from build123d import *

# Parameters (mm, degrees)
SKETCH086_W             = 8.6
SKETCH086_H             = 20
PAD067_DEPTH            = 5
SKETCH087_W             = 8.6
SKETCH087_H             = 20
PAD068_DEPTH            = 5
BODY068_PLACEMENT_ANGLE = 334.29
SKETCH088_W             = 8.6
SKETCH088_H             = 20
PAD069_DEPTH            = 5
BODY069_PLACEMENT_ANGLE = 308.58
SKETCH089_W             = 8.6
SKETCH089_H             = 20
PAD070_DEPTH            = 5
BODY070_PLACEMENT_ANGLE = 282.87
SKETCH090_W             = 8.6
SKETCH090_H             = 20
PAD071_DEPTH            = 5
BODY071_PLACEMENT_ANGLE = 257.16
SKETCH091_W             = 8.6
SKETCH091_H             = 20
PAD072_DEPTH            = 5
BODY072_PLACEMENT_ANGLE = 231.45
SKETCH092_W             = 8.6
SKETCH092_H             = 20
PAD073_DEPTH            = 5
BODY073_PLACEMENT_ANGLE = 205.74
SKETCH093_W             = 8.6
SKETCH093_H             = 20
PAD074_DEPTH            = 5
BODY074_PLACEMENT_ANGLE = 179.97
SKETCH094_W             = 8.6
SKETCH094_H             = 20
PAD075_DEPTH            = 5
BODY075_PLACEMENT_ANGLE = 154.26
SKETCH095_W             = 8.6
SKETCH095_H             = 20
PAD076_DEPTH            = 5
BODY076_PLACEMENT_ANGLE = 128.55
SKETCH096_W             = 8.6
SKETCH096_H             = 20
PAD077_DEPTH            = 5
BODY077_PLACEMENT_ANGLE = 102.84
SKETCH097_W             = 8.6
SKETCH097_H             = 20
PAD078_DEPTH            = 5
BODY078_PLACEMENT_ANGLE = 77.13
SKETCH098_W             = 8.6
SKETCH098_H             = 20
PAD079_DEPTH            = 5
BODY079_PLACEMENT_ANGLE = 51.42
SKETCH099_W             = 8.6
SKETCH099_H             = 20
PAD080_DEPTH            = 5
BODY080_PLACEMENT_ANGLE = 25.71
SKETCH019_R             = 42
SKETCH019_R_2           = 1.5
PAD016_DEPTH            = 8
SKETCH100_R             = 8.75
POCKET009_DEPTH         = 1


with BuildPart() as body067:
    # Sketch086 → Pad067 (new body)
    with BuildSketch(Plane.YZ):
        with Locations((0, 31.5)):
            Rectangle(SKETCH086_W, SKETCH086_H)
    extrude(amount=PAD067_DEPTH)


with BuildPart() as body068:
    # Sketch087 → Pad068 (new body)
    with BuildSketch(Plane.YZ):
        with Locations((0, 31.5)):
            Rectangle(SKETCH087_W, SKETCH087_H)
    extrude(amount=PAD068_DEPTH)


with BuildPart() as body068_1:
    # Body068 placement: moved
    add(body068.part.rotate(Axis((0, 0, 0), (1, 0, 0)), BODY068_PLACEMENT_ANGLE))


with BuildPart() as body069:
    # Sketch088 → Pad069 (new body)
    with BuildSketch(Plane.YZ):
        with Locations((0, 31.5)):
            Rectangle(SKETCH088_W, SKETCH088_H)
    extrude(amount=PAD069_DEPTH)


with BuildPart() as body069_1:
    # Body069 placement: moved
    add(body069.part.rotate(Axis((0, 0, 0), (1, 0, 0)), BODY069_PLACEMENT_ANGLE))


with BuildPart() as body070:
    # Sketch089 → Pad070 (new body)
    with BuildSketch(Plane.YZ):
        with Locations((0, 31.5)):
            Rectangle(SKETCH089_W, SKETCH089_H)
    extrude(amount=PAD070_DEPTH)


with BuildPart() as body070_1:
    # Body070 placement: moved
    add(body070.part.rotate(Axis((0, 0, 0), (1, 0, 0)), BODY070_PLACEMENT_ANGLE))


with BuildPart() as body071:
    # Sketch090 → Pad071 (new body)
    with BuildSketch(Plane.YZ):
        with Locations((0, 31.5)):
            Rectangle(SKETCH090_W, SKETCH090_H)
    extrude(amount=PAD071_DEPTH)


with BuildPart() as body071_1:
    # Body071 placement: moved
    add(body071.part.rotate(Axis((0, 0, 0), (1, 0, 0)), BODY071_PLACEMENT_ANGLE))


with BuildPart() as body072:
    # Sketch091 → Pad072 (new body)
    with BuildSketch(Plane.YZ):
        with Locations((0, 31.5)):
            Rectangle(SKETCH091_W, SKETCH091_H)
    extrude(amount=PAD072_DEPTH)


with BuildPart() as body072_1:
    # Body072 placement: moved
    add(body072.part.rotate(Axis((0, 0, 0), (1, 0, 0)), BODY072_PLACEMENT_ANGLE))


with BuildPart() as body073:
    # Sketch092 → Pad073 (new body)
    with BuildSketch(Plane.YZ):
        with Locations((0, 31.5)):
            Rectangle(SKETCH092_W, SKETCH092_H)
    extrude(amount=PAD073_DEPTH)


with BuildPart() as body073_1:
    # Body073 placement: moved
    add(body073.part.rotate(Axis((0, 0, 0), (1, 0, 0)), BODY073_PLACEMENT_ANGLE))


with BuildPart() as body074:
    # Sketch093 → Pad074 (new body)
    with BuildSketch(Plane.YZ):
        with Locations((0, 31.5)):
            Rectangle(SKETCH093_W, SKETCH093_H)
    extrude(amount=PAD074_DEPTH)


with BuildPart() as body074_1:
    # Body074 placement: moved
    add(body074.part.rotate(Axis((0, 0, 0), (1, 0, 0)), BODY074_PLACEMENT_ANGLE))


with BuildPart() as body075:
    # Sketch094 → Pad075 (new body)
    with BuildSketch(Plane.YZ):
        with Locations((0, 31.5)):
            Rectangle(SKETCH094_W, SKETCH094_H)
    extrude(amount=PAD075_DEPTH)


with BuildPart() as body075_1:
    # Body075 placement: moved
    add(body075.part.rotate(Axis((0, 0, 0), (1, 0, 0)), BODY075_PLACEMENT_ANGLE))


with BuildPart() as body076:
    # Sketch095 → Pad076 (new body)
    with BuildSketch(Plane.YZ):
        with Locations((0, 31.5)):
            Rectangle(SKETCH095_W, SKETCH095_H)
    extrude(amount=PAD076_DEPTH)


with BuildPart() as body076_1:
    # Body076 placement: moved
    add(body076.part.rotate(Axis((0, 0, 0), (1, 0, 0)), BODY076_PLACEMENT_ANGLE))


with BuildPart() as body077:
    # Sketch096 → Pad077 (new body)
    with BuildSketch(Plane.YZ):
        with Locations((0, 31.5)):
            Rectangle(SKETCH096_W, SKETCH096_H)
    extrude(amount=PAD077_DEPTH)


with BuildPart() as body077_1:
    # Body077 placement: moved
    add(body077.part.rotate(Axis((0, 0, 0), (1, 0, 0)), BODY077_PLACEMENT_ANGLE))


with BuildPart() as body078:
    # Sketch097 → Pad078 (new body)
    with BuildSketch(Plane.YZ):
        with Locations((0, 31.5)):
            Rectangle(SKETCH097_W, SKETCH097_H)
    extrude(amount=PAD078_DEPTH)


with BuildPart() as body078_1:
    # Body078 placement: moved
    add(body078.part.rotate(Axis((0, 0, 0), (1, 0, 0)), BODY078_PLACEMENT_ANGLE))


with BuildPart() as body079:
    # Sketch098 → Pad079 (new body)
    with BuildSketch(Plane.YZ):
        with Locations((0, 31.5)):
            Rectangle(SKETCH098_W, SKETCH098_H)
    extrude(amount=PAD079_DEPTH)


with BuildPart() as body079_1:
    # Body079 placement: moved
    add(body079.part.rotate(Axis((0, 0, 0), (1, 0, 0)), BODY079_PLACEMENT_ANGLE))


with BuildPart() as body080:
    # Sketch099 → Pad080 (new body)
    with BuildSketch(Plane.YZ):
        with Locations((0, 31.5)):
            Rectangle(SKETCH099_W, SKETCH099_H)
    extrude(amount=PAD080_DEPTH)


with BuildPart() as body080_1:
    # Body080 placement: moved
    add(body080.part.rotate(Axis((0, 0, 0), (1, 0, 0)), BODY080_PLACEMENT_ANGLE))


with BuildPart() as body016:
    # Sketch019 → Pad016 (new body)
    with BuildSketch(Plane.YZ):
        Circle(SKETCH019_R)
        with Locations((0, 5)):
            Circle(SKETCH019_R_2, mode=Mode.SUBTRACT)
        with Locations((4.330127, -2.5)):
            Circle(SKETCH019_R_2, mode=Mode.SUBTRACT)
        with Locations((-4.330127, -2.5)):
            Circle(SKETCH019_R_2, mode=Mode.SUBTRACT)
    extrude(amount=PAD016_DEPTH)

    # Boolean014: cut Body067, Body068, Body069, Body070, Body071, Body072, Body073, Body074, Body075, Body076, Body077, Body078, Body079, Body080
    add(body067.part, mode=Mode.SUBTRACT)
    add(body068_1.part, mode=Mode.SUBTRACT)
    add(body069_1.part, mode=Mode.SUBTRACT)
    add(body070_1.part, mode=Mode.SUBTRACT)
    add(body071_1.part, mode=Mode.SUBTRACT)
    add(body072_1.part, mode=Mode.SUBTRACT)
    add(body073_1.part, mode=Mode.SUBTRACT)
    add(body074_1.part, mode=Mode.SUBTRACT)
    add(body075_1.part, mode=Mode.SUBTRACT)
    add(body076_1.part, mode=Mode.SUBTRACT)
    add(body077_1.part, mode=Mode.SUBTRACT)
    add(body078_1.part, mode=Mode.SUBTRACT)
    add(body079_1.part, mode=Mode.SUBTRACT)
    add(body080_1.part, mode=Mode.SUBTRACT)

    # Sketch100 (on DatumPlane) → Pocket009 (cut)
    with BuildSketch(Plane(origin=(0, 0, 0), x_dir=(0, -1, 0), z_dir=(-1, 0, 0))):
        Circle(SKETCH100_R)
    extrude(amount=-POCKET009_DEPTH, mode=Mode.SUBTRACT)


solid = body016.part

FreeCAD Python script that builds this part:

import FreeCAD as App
import Part
import Sketcher

doc = App.newDocument("Part")
body = doc.addObject("PartDesign::Body", "Body")

# Sketch on YZ plane
sketch1 = doc.addObject("Sketcher::SketchObject", "Sketch")
body.addObject(sketch1)
sketch1.AttachmentSupport = (doc.YZ_Plane, [""])
sketch1.MapMode = "FlatFace"
sketch1.addGeometry([
    Part.LineSegment(App.Vector(-4.3, 41.5, 0), App.Vector(-4.3, 21.5, 0)),
    Part.LineSegment(App.Vector(-4.3, 21.5, 0), App.Vector(4.3, 21.5, 0)),
    Part.LineSegment(App.Vector(4.3, 21.5, 0), App.Vector(4.3, 41.5, 0)),
    Part.LineSegment(App.Vector(4.3, 41.5, 0), App.Vector(-4.3, 41.5, 0)),
], False)
sketch1.addConstraint([
    Sketcher.Constraint("Coincident", 0, 2, 1, 1),
    Sketcher.Constraint("Coincident", 1, 2, 2, 1),
    Sketcher.Constraint("Coincident", 2, 2, 3, 1),
    Sketcher.Constraint("Coincident", 3, 2, 0, 1),
    Sketcher.Constraint("Vertical", 0),
    Sketcher.Constraint("Horizontal", 1),
    Sketcher.Constraint("Vertical", 2),
    Sketcher.Constraint("Horizontal", 3),
    Sketcher.Constraint("DistanceY", 0, 2, 0, 1, 20.0),
    Sketcher.Constraint("DistanceX", 1, 1, 1, 2, 8.6),
    Sketcher.Constraint("DistanceX", 0, 2, -1, 1, 4.3),
    Sketcher.Constraint("DistanceY", -1, 1, 0, 2, 21.5),
])
pad1 = doc.addObject("PartDesign::Pad", "Pad")
body.addObject(pad1)
pad1.Profile = sketch1
pad1.Length = 5
body2 = doc.addObject("PartDesign::Body", "Body001")

# Sketch on YZ plane
sketch2 = doc.addObject("Sketcher::SketchObject", "Sketch001")
body2.addObject(sketch2)
sketch2.AttachmentSupport = (doc.getObject("YZ_Plane001"), [""])
sketch2.MapMode = "FlatFace"
sketch2.addGeometry([
    Part.LineSegment(App.Vector(-4.3, 41.5, 0), App.Vector(-4.3, 21.5, 0)),
    Part.LineSegment(App.Vector(-4.3, 21.5, 0), App.Vector(4.3, 21.5, 0)),
    Part.LineSegment(App.Vector(4.3, 21.5, 0), App.Vector(4.3, 41.5, 0)),
    Part.LineSegment(App.Vector(4.3, 41.5, 0), App.Vector(-4.3, 41.5, 0)),
], False)
sketch2.addConstraint([
    Sketcher.Constraint("Coincident", 0, 2, 1, 1),
    Sketcher.Constraint("Coincident", 1, 2, 2, 1),
    Sketcher.Constraint("Coincident", 2, 2, 3, 1),
    Sketcher.Constraint("Coincident", 3, 2, 0, 1),
    Sketcher.Constraint("Vertical", 0),
    Sketcher.Constraint("Horizontal", 1),
    Sketcher.Constraint("Vertical", 2),
    Sketcher.Constraint("Horizontal", 3),
    Sketcher.Constraint("DistanceY", 0, 2, 0, 1, 20.0),
    Sketcher.Constraint("DistanceX", 1, 1, 1, 2, 8.6),
    Sketcher.Constraint("DistanceX", 0, 2, -1, 1, 4.3),
    Sketcher.Constraint("DistanceY", -1, 1, 0, 2, 21.5),
])
pad2 = doc.addObject("PartDesign::Pad", "Pad001")
body2.addObject(pad2)
pad2.Profile = sketch2
pad2.Length = 5
body3 = doc.addObject("PartDesign::Body", "Body002")
doc.recompute()

body2.Placement = App.Placement(App.Vector(0, 0, 0), App.Rotation(App.Vector(1, 0, 0), 334.29))
boolean = doc.addObject("PartDesign::Boolean", "Boolean")
body3.addObject(boolean)
boolean.Type = "Fuse"
boolean.addObjects([body2])
body4 = doc.addObject("PartDesign::Body", "Body003")

# Sketch on YZ plane
sketch3 = doc.addObject("Sketcher::SketchObject", "Sketch002")
body4.addObject(sketch3)
sketch3.AttachmentSupport = (doc.getObject("YZ_Plane003"), [""])
sketch3.MapMode = "FlatFace"
sketch3.addGeometry([
    Part.LineSegment(App.Vector(-4.3, 41.5, 0), App.Vector(-4.3, 21.5, 0)),
    Part.LineSegment(App.Vector(-4.3, 21.5, 0), App.Vector(4.3, 21.5, 0)),
    Part.LineSegment(App.Vector(4.3, 21.5, 0), App.Vector(4.3, 41.5, 0)),
    Part.LineSegment(App.Vector(4.3, 41.5, 0), App.Vector(-4.3, 41.5, 0)),
], False)
sketch3.addConstraint([
    Sketcher.Constraint("Coincident", 0, 2, 1, 1),
    Sketcher.Constraint("Coincident", 1, 2, 2, 1),
    Sketcher.Constraint("Coincident", 2, 2, 3, 1),
    Sketcher.Constraint("Coincident", 3, 2, 0, 1),
    Sketcher.Constraint("Vertical", 0),
    Sketcher.Constraint("Horizontal", 1),
    Sketcher.Constraint("Vertical", 2),
    Sketcher.Constraint("Horizontal", 3),
    Sketcher.Constraint("DistanceY", 0, 2, 0, 1, 20.0),
    Sketcher.Constraint("DistanceX", 1, 1, 1, 2, 8.6),
    Sketcher.Constraint("DistanceX", 0, 2, -1, 1, 4.3),
    Sketcher.Constraint("DistanceY", -1, 1, 0, 2, 21.5),
])
pad3 = doc.addObject("PartDesign::Pad", "Pad002")
body4.addObject(pad3)
pad3.Profile = sketch3
pad3.Length = 5
body5 = doc.addObject("PartDesign::Body", "Body004")
doc.recompute()

body4.Placement = App.Placement(App.Vector(0, 0, 0), App.Rotation(App.Vector(1, 0, 0), 308.58))
boolean2 = doc.addObject("PartDesign::Boolean", "Boolean001")
body5.addObject(boolean2)
boolean2.Type = "Fuse"
boolean2.addObjects([body4])
body6 = doc.addObject("PartDesign::Body", "Body005")

# Sketch on YZ plane
sketch4 = doc.addObject("Sketcher::SketchObject", "Sketch003")
body6.addObject(sketch4)
sketch4.AttachmentSupport = (doc.getObject("YZ_Plane005"), [""])
sketch4.MapMode = "FlatFace"
sketch4.addGeometry([
    Part.LineSegment(App.Vector(-4.3, 41.5, 0), App.Vector(-4.3, 21.5, 0)),
    Part.LineSegment(App.Vector(-4.3, 21.5, 0), App.Vector(4.3, 21.5, 0)),
    Part.LineSegment(App.Vector(4.3, 21.5, 0), App.Vector(4.3, 41.5, 0)),
    Part.LineSegment(App.Vector(4.3, 41.5, 0), App.Vector(-4.3, 41.5, 0)),
], False)
sketch4.addConstraint([
    Sketcher.Constraint("Coincident", 0, 2, 1, 1),
    Sketcher.Constraint("Coincident", 1, 2, 2, 1),
    Sketcher.Constraint("Coincident", 2, 2, 3, 1),
    Sketcher.Constraint("Coincident", 3, 2, 0, 1),
    Sketcher.Constraint("Vertical", 0),
    Sketcher.Constraint("Horizontal", 1),
    Sketcher.Constraint("Vertical", 2),
    Sketcher.Constraint("Horizontal", 3),
    Sketcher.Constraint("DistanceY", 0, 2, 0, 1, 20.0),
    Sketcher.Constraint("DistanceX", 1, 1, 1, 2, 8.6),
    Sketcher.Constraint("DistanceX", 0, 2, -1, 1, 4.3),
    Sketcher.Constraint("DistanceY", -1, 1, 0, 2, 21.5),
])
pad4 = doc.addObject("PartDesign::Pad", "Pad003")
body6.addObject(pad4)
pad4.Profile = sketch4
pad4.Length = 5
body7 = doc.addObject("PartDesign::Body", "Body006")
doc.recompute()

body6.Placement = App.Placement(App.Vector(0, 0, 0), App.Rotation(App.Vector(1, 0, 0), 282.87))
boolean3 = doc.addObject("PartDesign::Boolean", "Boolean002")
body7.addObject(boolean3)
boolean3.Type = "Fuse"
boolean3.addObjects([body6])
body8 = doc.addObject("PartDesign::Body", "Body007")

# Sketch on YZ plane
sketch5 = doc.addObject("Sketcher::SketchObject", "Sketch004")
body8.addObject(sketch5)
sketch5.AttachmentSupport = (doc.getObject("YZ_Plane007"), [""])
sketch5.MapMode = "FlatFace"
sketch5.addGeometry([
    Part.LineSegment(App.Vector(-4.3, 41.5, 0), App.Vector(-4.3, 21.5, 0)),
    Part.LineSegment(App.Vector(-4.3, 21.5, 0), App.Vector(4.3, 21.5, 0)),
    Part.LineSegment(App.Vector(4.3, 21.5, 0), App.Vector(4.3, 41.5, 0)),
    Part.LineSegment(App.Vector(4.3, 41.5, 0), App.Vector(-4.3, 41.5, 0)),
], False)
sketch5.addConstraint([
    Sketcher.Constraint("Coincident", 0, 2, 1, 1),
    Sketcher.Constraint("Coincident", 1, 2, 2, 1),
    Sketcher.Constraint("Coincident", 2, 2, 3, 1),
    Sketcher.Constraint("Coincident", 3, 2, 0, 1),
    Sketcher.Constraint("Vertical", 0),
    Sketcher.Constraint("Horizontal", 1),
    Sketcher.Constraint("Vertical", 2),
    Sketcher.Constraint("Horizontal", 3),
    Sketcher.Constraint("DistanceY", 0, 2, 0, 1, 20.0),
    Sketcher.Constraint("DistanceX", 1, 1, 1, 2, 8.6),
    Sketcher.Constraint("DistanceX", 0, 2, -1, 1, 4.3),
    Sketcher.Constraint("DistanceY", -1, 1, 0, 2, 21.5),
])
pad5 = doc.addObject("PartDesign::Pad", "Pad004")
body8.addObject(pad5)
pad5.Profile = sketch5
pad5.Length = 5
body9 = doc.addObject("PartDesign::Body", "Body008")
doc.recompute()

body8.Placement = App.Placement(App.Vector(0, 0, 0), App.Rotation(App.Vector(1, 0, 0), 257.16))
boolean4 = doc.addObject("PartDesign::Boolean", "Boolean003")
body9.addObject(boolean4)
boolean4.Type = "Fuse"
boolean4.addObjects([body8])
body10 = doc.addObject("PartDesign::Body", "Body009")

# Sketch on YZ plane
sketch6 = doc.addObject("Sketcher::SketchObject", "Sketch005")
body10.addObject(sketch6)
sketch6.AttachmentSupport = (doc.getObject("YZ_Plane009"), [""])
sketch6.MapMode = "FlatFace"
sketch6.addGeometry([
    Part.LineSegment(App.Vector(-4.3, 41.5, 0), App.Vector(-4.3, 21.5, 0)),
    Part.LineSegment(App.Vector(-4.3, 21.5, 0), App.Vector(4.3, 21.5, 0)),
    Part.LineSegment(App.Vector(4.3, 21.5, 0), App.Vector(4.3, 41.5, 0)),
    Part.LineSegment(App.Vector(4.3, 41.5, 0), App.Vector(-4.3, 41.5, 0)),
], False)
sketch6.addConstraint([
    Sketcher.Constraint("Coincident", 0, 2, 1, 1),
    Sketcher.Constraint("Coincident", 1, 2, 2, 1),
    Sketcher.Constraint("Coincident", 2, 2, 3, 1),
    Sketcher.Constraint("Coincident", 3, 2, 0, 1),
    Sketcher.Constraint("Vertical", 0),
    Sketcher.Constraint("Horizontal", 1),
    Sketcher.Constraint("Vertical", 2),
    Sketcher.Constraint("Horizontal", 3),
    Sketcher.Constraint("DistanceY", 0, 2, 0, 1, 20.0),
    Sketcher.Constraint("DistanceX", 1, 1, 1, 2, 8.6),
    Sketcher.Constraint("DistanceX", 0, 2, -1, 1, 4.3),
    Sketcher.Constraint("DistanceY", -1, 1, 0, 2, 21.5),
])
pad6 = doc.addObject("PartDesign::Pad", "Pad005")
body10.addObject(pad6)
pad6.Profile = sketch6
pad6.Length = 5
body11 = doc.addObject("PartDesign::Body", "Body010")
doc.recompute()

body10.Placement = App.Placement(App.Vector(0, 0, 0), App.Rotation(App.Vector(1, 0, 0), 231.45))
boolean5 = doc.addObject("PartDesign::Boolean", "Boolean004")
body11.addObject(boolean5)
boolean5.Type = "Fuse"
boolean5.addObjects([body10])
body12 = doc.addObject("PartDesign::Body", "Body011")

# Sketch on YZ plane
sketch7 = doc.addObject("Sketcher::SketchObject", "Sketch006")
body12.addObject(sketch7)
sketch7.AttachmentSupport = (doc.getObject("YZ_Plane011"), [""])
sketch7.MapMode = "FlatFace"
sketch7.addGeometry([
    Part.LineSegment(App.Vector(-4.3, 41.5, 0), App.Vector(-4.3, 21.5, 0)),
    Part.LineSegment(App.Vector(-4.3, 21.5, 0), App.Vector(4.3, 21.5, 0)),
    Part.LineSegment(App.Vector(4.3, 21.5, 0), App.Vector(4.3, 41.5, 0)),
    Part.LineSegment(App.Vector(4.3, 41.5, 0), App.Vector(-4.3, 41.5, 0)),
], False)
sketch7.addConstraint([
    Sketcher.Constraint("Coincident", 0, 2, 1, 1),
    Sketcher.Constraint("Coincident", 1, 2, 2, 1),
    Sketcher.Constraint("Coincident", 2, 2, 3, 1),
    Sketcher.Constraint("Coincident", 3, 2, 0, 1),
    Sketcher.Constraint("Vertical", 0),
    Sketcher.Constraint("Horizontal", 1),
    Sketcher.Constraint("Vertical", 2),
    Sketcher.Constraint("Horizontal", 3),
    Sketcher.Constraint("DistanceY", 0, 2, 0, 1, 20.0),
    Sketcher.Constraint("DistanceX", 1, 1, 1, 2, 8.6),
    Sketcher.Constraint("DistanceX", 0, 2, -1, 1, 4.3),
    Sketcher.Constraint("DistanceY", -1, 1, 0, 2, 21.5),
])
pad7 = doc.addObject("PartDesign::Pad", "Pad006")
body12.addObject(pad7)
pad7.Profile = sketch7
pad7.Length = 5
body13 = doc.addObject("PartDesign::Body", "Body012")
doc.recompute()

body12.Placement = App.Placement(App.Vector(0, 0, 0), App.Rotation(App.Vector(1, 0, 0), 205.74))
boolean6 = doc.addObject("PartDesign::Boolean", "Boolean005")
body13.addObject(boolean6)
boolean6.Type = "Fuse"
boolean6.addObjects([body12])
body14 = doc.addObject("PartDesign::Body", "Body013")

# Sketch on YZ plane
sketch8 = doc.addObject("Sketcher::SketchObject", "Sketch007")
body14.addObject(sketch8)
sketch8.AttachmentSupport = (doc.getObject("YZ_Plane013"), [""])
sketch8.MapMode = "FlatFace"
sketch8.addGeometry([
    Part.LineSegment(App.Vector(-4.3, 41.5, 0), App.Vector(-4.3, 21.5, 0)),
    Part.LineSegment(App.Vector(-4.3, 21.5, 0), App.Vector(4.3, 21.5, 0)),
    Part.LineSegment(App.Vector(4.3, 21.5, 0), App.Vector(4.3, 41.5, 0)),
    Part.LineSegment(App.Vector(4.3, 41.5, 0), App.Vector(-4.3, 41.5, 0)),
], False)
sketch8.addConstraint([
    Sketcher.Constraint("Coincident", 0, 2, 1, 1),
    Sketcher.Constraint("Coincident", 1, 2, 2, 1),
    Sketcher.Constraint("Coincident", 2, 2, 3, 1),
    Sketcher.Constraint("Coincident", 3, 2, 0, 1),
    Sketcher.Constraint("Vertical", 0),
    Sketcher.Constraint("Horizontal", 1),
    Sketcher.Constraint("Vertical", 2),
    Sketcher.Constraint("Horizontal", 3),
    Sketcher.Constraint("DistanceY", 0, 2, 0, 1, 20.0),
    Sketcher.Constraint("DistanceX", 1, 1, 1, 2, 8.6),
    Sketcher.Constraint("DistanceX", 0, 2, -1, 1, 4.3),
    Sketcher.Constraint("DistanceY", -1, 1, 0, 2, 21.5),
])
pad8 = doc.addObject("PartDesign::Pad", "Pad007")
body14.addObject(pad8)
pad8.Profile = sketch8
pad8.Length = 5
body15 = doc.addObject("PartDesign::Body", "Body014")
doc.recompute()

body14.Placement = App.Placement(App.Vector(0, 0, 0), App.Rotation(App.Vector(1, 0, 0), 179.97))
boolean7 = doc.addObject("PartDesign::Boolean", "Boolean006")
body15.addObject(boolean7)
boolean7.Type = "Fuse"
boolean7.addObjects([body14])
body16 = doc.addObject("PartDesign::Body", "Body015")

# Sketch on YZ plane
sketch9 = doc.addObject("Sketcher::SketchObject", "Sketch008")
body16.addObject(sketch9)
sketch9.AttachmentSupport = (doc.getObject("YZ_Plane015"), [""])
sketch9.MapMode = "FlatFace"
sketch9.addGeometry([
    Part.LineSegment(App.Vector(-4.3, 41.5, 0), App.Vector(-4.3, 21.5, 0)),
    Part.LineSegment(App.Vector(-4.3, 21.5, 0), App.Vector(4.3, 21.5, 0)),
    Part.LineSegment(App.Vector(4.3, 21.5, 0), App.Vector(4.3, 41.5, 0)),
    Part.LineSegment(App.Vector(4.3, 41.5, 0), App.Vector(-4.3, 41.5, 0)),
], False)
sketch9.addConstraint([
    Sketcher.Constraint("Coincident", 0, 2, 1, 1),
    Sketcher.Constraint("Coincident", 1, 2, 2, 1),
    Sketcher.Constraint("Coincident", 2, 2, 3, 1),
    Sketcher.Constraint("Coincident", 3, 2, 0, 1),
    Sketcher.Constraint("Vertical", 0),
    Sketcher.Constraint("Horizontal", 1),
    Sketcher.Constraint("Vertical", 2),
    Sketcher.Constraint("Horizontal", 3),
    Sketcher.Constraint("DistanceY", 0, 2, 0, 1, 20.0),
    Sketcher.Constraint("DistanceX", 1, 1, 1, 2, 8.6),
    Sketcher.Constraint("DistanceX", 0, 2, -1, 1, 4.3),
    Sketcher.Constraint("DistanceY", -1, 1, 0, 2, 21.5),
])
pad9 = doc.addObject("PartDesign::Pad", "Pad008")
body16.addObject(pad9)
pad9.Profile = sketch9
pad9.Length = 5
body17 = doc.addObject("PartDesign::Body", "Body016")
doc.recompute()

body16.Placement = App.Placement(App.Vector(0, 0, 0), App.Rotation(App.Vector(1, 0, 0), 154.26))
boolean8 = doc.addObject("PartDesign::Boolean", "Boolean007")
body17.addObject(boolean8)
boolean8.Type = "Fuse"
boolean8.addObjects([body16])
body18 = doc.addObject("PartDesign::Body", "Body017")

# Sketch on YZ plane
sketch10 = doc.addObject("Sketcher::SketchObject", "Sketch009")
body18.addObject(sketch10)
sketch10.AttachmentSupport = (doc.getObject("YZ_Plane017"), [""])
sketch10.MapMode = "FlatFace"
sketch10.addGeometry([
    Part.LineSegment(App.Vector(-4.3, 41.5, 0), App.Vector(-4.3, 21.5, 0)),
    Part.LineSegment(App.Vector(-4.3, 21.5, 0), App.Vector(4.3, 21.5, 0)),
    Part.LineSegment(App.Vector(4.3, 21.5, 0), App.Vector(4.3, 41.5, 0)),
    Part.LineSegment(App.Vector(4.3, 41.5, 0), App.Vector(-4.3, 41.5, 0)),
], False)
sketch10.addConstraint([
    Sketcher.Constraint("Coincident", 0, 2, 1, 1),
    Sketcher.Constraint("Coincident", 1, 2, 2, 1),
    Sketcher.Constraint("Coincident", 2, 2, 3, 1),
    Sketcher.Constraint("Coincident", 3, 2, 0, 1),
    Sketcher.Constraint("Vertical", 0),
    Sketcher.Constraint("Horizontal", 1),
    Sketcher.Constraint("Vertical", 2),
    Sketcher.Constraint("Horizontal", 3),
    Sketcher.Constraint("DistanceY", 0, 2, 0, 1, 20.0),
    Sketcher.Constraint("DistanceX", 1, 1, 1, 2, 8.6),
    Sketcher.Constraint("DistanceX", 0, 2, -1, 1, 4.3),
    Sketcher.Constraint("DistanceY", -1, 1, 0, 2, 21.5),
])
pad10 = doc.addObject("PartDesign::Pad", "Pad009")
body18.addObject(pad10)
pad10.Profile = sketch10
pad10.Length = 5
body19 = doc.addObject("PartDesign::Body", "Body018")
doc.recompute()

body18.Placement = App.Placement(App.Vector(0, 0, 0), App.Rotation(App.Vector(1, 0, 0), 128.55))
boolean9 = doc.addObject("PartDesign::Boolean", "Boolean008")
body19.addObject(boolean9)
boolean9.Type = "Fuse"
boolean9.addObjects([body18])
body20 = doc.addObject("PartDesign::Body", "Body019")

# Sketch on YZ plane
sketch11 = doc.addObject("Sketcher::SketchObject", "Sketch010")
body20.addObject(sketch11)
sketch11.AttachmentSupport = (doc.getObject("YZ_Plane019"), [""])
sketch11.MapMode = "FlatFace"
sketch11.addGeometry([
    Part.LineSegment(App.Vector(-4.3, 41.5, 0), App.Vector(-4.3, 21.5, 0)),
    Part.LineSegment(App.Vector(-4.3, 21.5, 0), App.Vector(4.3, 21.5, 0)),
    Part.LineSegment(App.Vector(4.3, 21.5, 0), App.Vector(4.3, 41.5, 0)),
    Part.LineSegment(App.Vector(4.3, 41.5, 0), App.Vector(-4.3, 41.5, 0)),
], False)
sketch11.addConstraint([
    Sketcher.Constraint("Coincident", 0, 2, 1, 1),
    Sketcher.Constraint("Coincident", 1, 2, 2, 1),
    Sketcher.Constraint("Coincident", 2, 2, 3, 1),
    Sketcher.Constraint("Coincident", 3, 2, 0, 1),
    Sketcher.Constraint("Vertical", 0),
    Sketcher.Constraint("Horizontal", 1),
    Sketcher.Constraint("Vertical", 2),
    Sketcher.Constraint("Horizontal", 3),
    Sketcher.Constraint("DistanceY", 0, 2, 0, 1, 20.0),
    Sketcher.Constraint("DistanceX", 1, 1, 1, 2, 8.6),
    Sketcher.Constraint("DistanceX", 0, 2, -1, 1, 4.3),
    Sketcher.Constraint("DistanceY", -1, 1, 0, 2, 21.5),
])
pad11 = doc.addObject("PartDesign::Pad", "Pad010")
body20.addObject(pad11)
pad11.Profile = sketch11
pad11.Length = 5
body21 = doc.addObject("PartDesign::Body", "Body020")
doc.recompute()

body20.Placement = App.Placement(App.Vector(0, 0, 0), App.Rotation(App.Vector(1, 0, 0), 102.84))
boolean10 = doc.addObject("PartDesign::Boolean", "Boolean009")
body21.addObject(boolean10)
boolean10.Type = "Fuse"
boolean10.addObjects([body20])
body22 = doc.addObject("PartDesign::Body", "Body021")

# Sketch on YZ plane
sketch12 = doc.addObject("Sketcher::SketchObject", "Sketch011")
body22.addObject(sketch12)
sketch12.AttachmentSupport = (doc.getObject("YZ_Plane021"), [""])
sketch12.MapMode = "FlatFace"
sketch12.addGeometry([
    Part.LineSegment(App.Vector(-4.3, 41.5, 0), App.Vector(-4.3, 21.5, 0)),
    Part.LineSegment(App.Vector(-4.3, 21.5, 0), App.Vector(4.3, 21.5, 0)),
    Part.LineSegment(App.Vector(4.3, 21.5, 0), App.Vector(4.3, 41.5, 0)),
    Part.LineSegment(App.Vector(4.3, 41.5, 0), App.Vector(-4.3, 41.5, 0)),
], False)
sketch12.addConstraint([
    Sketcher.Constraint("Coincident", 0, 2, 1, 1),
    Sketcher.Constraint("Coincident", 1, 2, 2, 1),
    Sketcher.Constraint("Coincident", 2, 2, 3, 1),
    Sketcher.Constraint("Coincident", 3, 2, 0, 1),
    Sketcher.Constraint("Vertical", 0),
    Sketcher.Constraint("Horizontal", 1),
    Sketcher.Constraint("Vertical", 2),
    Sketcher.Constraint("Horizontal", 3),
    Sketcher.Constraint("DistanceY", 0, 2, 0, 1, 20.0),
    Sketcher.Constraint("DistanceX", 1, 1, 1, 2, 8.6),
    Sketcher.Constraint("DistanceX", 0, 2, -1, 1, 4.3),
    Sketcher.Constraint("DistanceY", -1, 1, 0, 2, 21.5),
])
pad12 = doc.addObject("PartDesign::Pad", "Pad011")
body22.addObject(pad12)
pad12.Profile = sketch12
pad12.Length = 5
body23 = doc.addObject("PartDesign::Body", "Body022")
doc.recompute()

body22.Placement = App.Placement(App.Vector(0, 0, 0), App.Rotation(App.Vector(1, 0, 0), 77.13))
boolean11 = doc.addObject("PartDesign::Boolean", "Boolean010")
body23.addObject(boolean11)
boolean11.Type = "Fuse"
boolean11.addObjects([body22])
body24 = doc.addObject("PartDesign::Body", "Body023")

# Sketch on YZ plane
sketch13 = doc.addObject("Sketcher::SketchObject", "Sketch012")
body24.addObject(sketch13)
sketch13.AttachmentSupport = (doc.getObject("YZ_Plane023"), [""])
sketch13.MapMode = "FlatFace"
sketch13.addGeometry([
    Part.LineSegment(App.Vector(-4.3, 41.5, 0), App.Vector(-4.3, 21.5, 0)),
    Part.LineSegment(App.Vector(-4.3, 21.5, 0), App.Vector(4.3, 21.5, 0)),
    Part.LineSegment(App.Vector(4.3, 21.5, 0), App.Vector(4.3, 41.5, 0)),
    Part.LineSegment(App.Vector(4.3, 41.5, 0), App.Vector(-4.3, 41.5, 0)),
], False)
sketch13.addConstraint([
    Sketcher.Constraint("Coincident", 0, 2, 1, 1),
    Sketcher.Constraint("Coincident", 1, 2, 2, 1),
    Sketcher.Constraint("Coincident", 2, 2, 3, 1),
    Sketcher.Constraint("Coincident", 3, 2, 0, 1),
    Sketcher.Constraint("Vertical", 0),
    Sketcher.Constraint("Horizontal", 1),
    Sketcher.Constraint("Vertical", 2),
    Sketcher.Constraint("Horizontal", 3),
    Sketcher.Constraint("DistanceY", 0, 2, 0, 1, 20.0),
    Sketcher.Constraint("DistanceX", 1, 1, 1, 2, 8.6),
    Sketcher.Constraint("DistanceX", 0, 2, -1, 1, 4.3),
    Sketcher.Constraint("DistanceY", -1, 1, 0, 2, 21.5),
])
pad13 = doc.addObject("PartDesign::Pad", "Pad012")
body24.addObject(pad13)
pad13.Profile = sketch13
pad13.Length = 5
body25 = doc.addObject("PartDesign::Body", "Body024")
doc.recompute()

body24.Placement = App.Placement(App.Vector(0, 0, 0), App.Rotation(App.Vector(1, 0, 0), 51.42))
boolean12 = doc.addObject("PartDesign::Boolean", "Boolean011")
body25.addObject(boolean12)
boolean12.Type = "Fuse"
boolean12.addObjects([body24])
body26 = doc.addObject("PartDesign::Body", "Body025")

# Sketch on YZ plane
sketch14 = doc.addObject("Sketcher::SketchObject", "Sketch013")
body26.addObject(sketch14)
sketch14.AttachmentSupport = (doc.getObject("YZ_Plane025"), [""])
sketch14.MapMode = "FlatFace"
sketch14.addGeometry([
    Part.LineSegment(App.Vector(-4.3, 41.5, 0), App.Vector(-4.3, 21.5, 0)),
    Part.LineSegment(App.Vector(-4.3, 21.5, 0), App.Vector(4.3, 21.5, 0)),
    Part.LineSegment(App.Vector(4.3, 21.5, 0), App.Vector(4.3, 41.5, 0)),
    Part.LineSegment(App.Vector(4.3, 41.5, 0), App.Vector(-4.3, 41.5, 0)),
], False)
sketch14.addConstraint([
    Sketcher.Constraint("Coincident", 0, 2, 1, 1),
    Sketcher.Constraint("Coincident", 1, 2, 2, 1),
    Sketcher.Constraint("Coincident", 2, 2, 3, 1),
    Sketcher.Constraint("Coincident", 3, 2, 0, 1),
    Sketcher.Constraint("Vertical", 0),
    Sketcher.Constraint("Horizontal", 1),
    Sketcher.Constraint("Vertical", 2),
    Sketcher.Constraint("Horizontal", 3),
    Sketcher.Constraint("DistanceY", 0, 2, 0, 1, 20.0),
    Sketcher.Constraint("DistanceX", 1, 1, 1, 2, 8.6),
    Sketcher.Constraint("DistanceX", 0, 2, -1, 1, 4.3),
    Sketcher.Constraint("DistanceY", -1, 1, 0, 2, 21.5),
])
pad14 = doc.addObject("PartDesign::Pad", "Pad013")
body26.addObject(pad14)
pad14.Profile = sketch14
pad14.Length = 5
body27 = doc.addObject("PartDesign::Body", "Body026")
doc.recompute()

body26.Placement = App.Placement(App.Vector(0, 0, 0), App.Rotation(App.Vector(1, 0, 0), 25.71))
boolean13 = doc.addObject("PartDesign::Boolean", "Boolean012")
body27.addObject(boolean13)
boolean13.Type = "Fuse"
boolean13.addObjects([body26])
body28 = doc.addObject("PartDesign::Body", "Body027")

# Sketch on YZ plane
sketch15 = doc.addObject("Sketcher::SketchObject", "Sketch014")
body28.addObject(sketch15)
sketch15.AttachmentSupport = (doc.getObject("YZ_Plane027"), [""])
sketch15.MapMode = "FlatFace"
sketch15.addGeometry([
    Part.Circle(App.Vector(0, 0, 0), App.Vector(0, 0, 1), 42),
    Part.Circle(App.Vector(-4.330127, -2.5, 0), App.Vector(0, 0, 1), 1.5),
    Part.Circle(App.Vector(4.330127, -2.5, 0), App.Vector(0, 0, 1), 1.5),
    Part.Circle(App.Vector(0, 5, 0), App.Vector(0, 0, 1), 1.5),
], False)
sketch15.addConstraint([
    Sketcher.Constraint("Coincident", 0, 3, -1, 1),
    Sketcher.Constraint("Equal", 1, 2),
    Sketcher.Constraint("Equal", 2, 3),
    Sketcher.Constraint("Symmetric", 1, 3, 2, 3, -2),
    Sketcher.Constraint("PointOnObject", 3, 3, -2),
    Sketcher.Constraint("Diameter", 0, 84.0),
    Sketcher.Constraint("Diameter", 1, 3.0),
    Sketcher.Constraint("DistanceY", -1, 1, 3, 3, 5.0),
    Sketcher.Constraint("DistanceY", 1, 3, -1, 1, 2.5),
    Sketcher.Constraint("DistanceX", 1, 3, -1, 1, 4.330127),
])
pad15 = doc.addObject("PartDesign::Pad", "Pad014")
body28.addObject(pad15)
pad15.Profile = sketch15
pad15.Length = 8
doc.recompute()

boolean14 = doc.addObject("PartDesign::Boolean", "Boolean013")
body28.addObject(boolean14)
boolean14.Type = "Cut"
boolean14.addObjects([body])
doc.recompute()

boolean15 = doc.addObject("PartDesign::Boolean", "Boolean014")
body28.addObject(boolean15)
boolean15.Type = "Cut"
boolean15.addObjects([body3])
doc.recompute()

boolean16 = doc.addObject("PartDesign::Boolean", "Boolean015")
body28.addObject(boolean16)
boolean16.Type = "Cut"
boolean16.addObjects([body5])
doc.recompute()

boolean17 = doc.addObject("PartDesign::Boolean", "Boolean016")
body28.addObject(boolean17)
boolean17.Type = "Cut"
boolean17.addObjects([body7])
doc.recompute()

boolean18 = doc.addObject("PartDesign::Boolean", "Boolean017")
body28.addObject(boolean18)
boolean18.Type = "Cut"
boolean18.addObjects([body9])
doc.recompute()

boolean19 = doc.addObject("PartDesign::Boolean", "Boolean018")
body28.addObject(boolean19)
boolean19.Type = "Cut"
boolean19.addObjects([body11])
doc.recompute()

boolean20 = doc.addObject("PartDesign::Boolean", "Boolean019")
body28.addObject(boolean20)
boolean20.Type = "Cut"
boolean20.addObjects([body13])
doc.recompute()

boolean21 = doc.addObject("PartDesign::Boolean", "Boolean020")
body28.addObject(boolean21)
boolean21.Type = "Cut"
boolean21.addObjects([body15])
doc.recompute()

boolean22 = doc.addObject("PartDesign::Boolean", "Boolean021")
body28.addObject(boolean22)
boolean22.Type = "Cut"
boolean22.addObjects([body17])
doc.recompute()

boolean23 = doc.addObject("PartDesign::Boolean", "Boolean022")
body28.addObject(boolean23)
boolean23.Type = "Cut"
boolean23.addObjects([body19])
doc.recompute()

boolean24 = doc.addObject("PartDesign::Boolean", "Boolean023")
body28.addObject(boolean24)
boolean24.Type = "Cut"
boolean24.addObjects([body21])
doc.recompute()

boolean25 = doc.addObject("PartDesign::Boolean", "Boolean024")
body28.addObject(boolean25)
boolean25.Type = "Cut"
boolean25.addObjects([body23])
doc.recompute()

boolean26 = doc.addObject("PartDesign::Boolean", "Boolean025")
body28.addObject(boolean26)
boolean26.Type = "Cut"
boolean26.addObjects([body25])
doc.recompute()

boolean27 = doc.addObject("PartDesign::Boolean", "Boolean026")
body28.addObject(boolean27)
boolean27.Type = "Cut"
boolean27.addObjects([body27])

# Sketch on YZ plane
sketch16 = doc.addObject("Sketcher::SketchObject", "Sketch015")
body28.addObject(sketch16)
sketch16.AttachmentSupport = (doc.getObject("YZ_Plane027"), [""])
sketch16.MapMode = "FlatFace"
sketch16.addGeometry(Part.Circle(App.Vector(0, 0, 0), App.Vector(0, 0, 1), 8.75), False)
sketch16.addConstraint([
    Sketcher.Constraint("Coincident", 0, 3, -1, 1),
    Sketcher.Constraint("Diameter", 0, 17.5),
])
pocket1 = doc.addObject("PartDesign::Pocket", "Pocket")
body28.addObject(pocket1)
pocket1.Profile = sketch16
pocket1.Length = 1
pocket1.Reversed = True

doc.recompute()
